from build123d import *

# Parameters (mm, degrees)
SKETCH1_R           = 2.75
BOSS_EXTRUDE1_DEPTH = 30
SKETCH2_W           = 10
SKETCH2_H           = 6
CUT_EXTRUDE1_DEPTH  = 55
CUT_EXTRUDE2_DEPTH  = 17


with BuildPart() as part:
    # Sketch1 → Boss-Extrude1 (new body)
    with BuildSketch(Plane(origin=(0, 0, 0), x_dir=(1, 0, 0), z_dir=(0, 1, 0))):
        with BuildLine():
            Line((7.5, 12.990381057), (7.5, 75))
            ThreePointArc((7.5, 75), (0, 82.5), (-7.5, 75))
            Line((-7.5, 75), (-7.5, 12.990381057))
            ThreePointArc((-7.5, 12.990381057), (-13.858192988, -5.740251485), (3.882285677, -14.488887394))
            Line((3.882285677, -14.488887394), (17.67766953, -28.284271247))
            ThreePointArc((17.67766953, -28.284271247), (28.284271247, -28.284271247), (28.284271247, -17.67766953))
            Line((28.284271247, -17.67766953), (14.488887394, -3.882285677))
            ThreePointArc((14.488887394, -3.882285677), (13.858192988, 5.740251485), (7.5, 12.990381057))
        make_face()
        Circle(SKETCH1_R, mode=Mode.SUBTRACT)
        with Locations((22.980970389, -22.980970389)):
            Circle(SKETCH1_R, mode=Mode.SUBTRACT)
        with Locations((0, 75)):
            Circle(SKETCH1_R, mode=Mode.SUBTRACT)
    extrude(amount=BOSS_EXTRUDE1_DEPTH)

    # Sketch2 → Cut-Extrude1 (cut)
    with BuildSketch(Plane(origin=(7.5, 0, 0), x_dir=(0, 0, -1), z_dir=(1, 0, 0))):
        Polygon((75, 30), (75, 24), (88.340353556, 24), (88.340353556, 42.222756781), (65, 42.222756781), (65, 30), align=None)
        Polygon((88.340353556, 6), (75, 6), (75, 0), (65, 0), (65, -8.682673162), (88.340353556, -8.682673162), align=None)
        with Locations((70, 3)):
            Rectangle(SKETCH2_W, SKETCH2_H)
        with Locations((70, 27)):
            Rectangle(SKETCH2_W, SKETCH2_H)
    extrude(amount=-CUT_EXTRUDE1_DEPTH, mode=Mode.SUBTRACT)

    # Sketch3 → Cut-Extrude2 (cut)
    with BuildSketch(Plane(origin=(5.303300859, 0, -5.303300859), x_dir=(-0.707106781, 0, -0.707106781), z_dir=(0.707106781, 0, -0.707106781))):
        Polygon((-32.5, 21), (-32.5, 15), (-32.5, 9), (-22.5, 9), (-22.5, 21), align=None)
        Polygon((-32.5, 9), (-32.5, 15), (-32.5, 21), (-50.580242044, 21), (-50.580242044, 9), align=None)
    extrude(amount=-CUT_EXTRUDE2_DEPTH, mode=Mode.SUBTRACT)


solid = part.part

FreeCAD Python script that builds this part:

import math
import FreeCAD as App
import Part
import Sketcher
Q = App.Units.Quantity

doc = App.newDocument("Part")
params = doc.addObject("Spreadsheet::Sheet", "Params")
for row, (alias, value) in enumerate([
    ("sketch1_radius", "15 mm"),
    ("sketch1_diameter", "5.5 mm"),
    ("sketch1_radius2", "7.5 mm"),
    ("pad1_length", "30 mm"),
    ("pocket1_length", "55 mm"),
    ("sketch3_height", "12 mm"),
    ("pocket2_length", "17 mm"),
], start=1):
    params.set(f"A{row}", alias)
    params.set(f"B{row}", "=" + value)
    params.setAlias(f"B{row}", alias)

body = doc.addObject("PartDesign::Body", "Body")

sketch1 = body.newObject("Sketcher::SketchObject", "Sketch")
sketch1.AttachmentSupport = (doc.getObject("XZ_Plane"), [""])
sketch1.MapMode = "FlatFace"
sketch1.addGeometry([
    Part.LineSegment(App.Vector(7.5, -13, 0), App.Vector(7.5, -75, 0)),
    Part.ArcOfCircle(Part.Circle(App.Vector(0, -75, 0), App.Vector(0, 0, 1), 7.5), math.radians(180), math.radians(360)),
    Part.LineSegment(App.Vector(-7.5, -75, 0), App.Vector(-7.5, -13, 0)),
    Part.ArcOfCircle(Part.Circle(App.Vector(0, 0, 0), App.Vector(0, 0, 1), 15), math.radians(75), math.radians(240)),
    Part.LineSegment(App.Vector(3.9, 14.5, 0), App.Vector(17.7, 28.3, 0)),
    Part.ArcOfCircle(Part.Circle(App.Vector(23, 23, 0), App.Vector(0, 0, 1), 7.5), math.radians(-45), math.radians(135)),
    Part.LineSegment(App.Vector(28.3, 17.7, 0), App.Vector(14.5, 3.9, 0)),
    Part.ArcOfCircle(Part.Circle(App.Vector(0, 0, 0), App.Vector(0, 0, 1), 15), math.radians(-60), math.radians(15)),
    Part.Circle(App.Vector(0, 0, 0), App.Vector(0, 0, 1), 2.8),
    Part.Circle(App.Vector(23, 23, 0), App.Vector(0, 0, 1), 2.8),
    Part.Circle(App.Vector(0, -75, 0), App.Vector(0, 0, 1), 2.8),
], False)
sketch1.addConstraint([
    Sketcher.Constraint("Tangent", 0, 2, 1, 2),
    Sketcher.Constraint("Tangent", 1, 1, 2, 1),
    Sketcher.Constraint("Coincident", 2, 2, 3, 2),
    Sketcher.Constraint("Coincident", 3, 1, 4, 1),
    Sketcher.Constraint("Tangent", 4, 2, 5, 2),
    Sketcher.Constraint("Tangent", 5, 1, 6, 1),
    Sketcher.Constraint("Coincident", 6, 2, 7, 2),
    Sketcher.Constraint("Coincident", 7, 1, 0, 1),
    Sketcher.Constraint("Vertical", 0),
    Sketcher.Constraint("Vertical", 2),
    Sketcher.Constraint("Coincident", 3, 3, -1, 1),
    Sketcher.Constraint("Coincident", 7, 3, -1, 1),
    Sketcher.Constraint("Coincident", 8, 3, -1, 1),
    Sketcher.Constraint("Coincident", 9, 3, 5, 3),
    Sketcher.Constraint("Coincident", 10, 3, 1, 3),
    Sketcher.Constraint("Equal", 1, 5),
    Sketcher.Constraint("Equal", 3, 7),
    Sketcher.Constraint("Equal", 8, 9),
    Sketcher.Constraint("Equal", 9, 10),
    Sketcher.Constraint("PointOnObject", 1, 3, -2),
    Sketcher.Constraint("Parallel", 4, 6),
    Sketcher.Constraint("Equal", 4, 6),
    Sketcher.Constraint("Radius", 3, Q("15 mm")),
    Sketcher.Constraint("Diameter", 8, Q("5.5 mm")),
    Sketcher.Constraint("Radius", 1, Q("7.5 mm")),
    Sketcher.Constraint("Angle", 4, Q("45 deg")),
    Sketcher.Constraint("DistanceY", 1, 3, -1, 1, Q("75 mm")),
    Sketcher.Constraint("Distance", 4, Q("19.509619 mm")),
])
sketch1.setExpression("Constraints[22]", "Params.sketch1_radius")
sketch1.setExpression("Constraints[23]", "Params.sketch1_diameter")
sketch1.setExpression("Constraints[24]", "Params.sketch1_radius2")
pad1 = body.newObject("PartDesign::Pad", "Pad")
pad1.Profile = sketch1
pad1.setExpression("Length", "Params.pad1_length")
pad1.Reversed = True

sketch2 = body.newObject("Sketcher::SketchObject", "Sketch001")
sketch2.AttachmentSupport = (doc.getObject("YZ_Plane"), [""])
sketch2.MapMode = "FlatFace"
sketch2.AttachmentOffset = App.Placement(App.Vector(0, 0, 7.5), App.Rotation())
sketch2.addGeometry([
    Part.LineSegment(App.Vector(24, -88, 0), App.Vector(42, -88, 0)),
    Part.LineSegment(App.Vector(42, -88, 0), App.Vector(42, -65, 0)),
    Part.LineSegment(App.Vector(42, -65, 0), App.Vector(24, -65, 0)),
    Part.LineSegment(App.Vector(24, -65, 0), App.Vector(24, -88, 0)),
    Part.LineSegment(App.Vector(6, -88, 0), App.Vector(6, -65, 0)),
    Part.LineSegment(App.Vector(6, -65, 0), App.Vector(-9, -65, 0)),
    Part.LineSegment(App.Vector(-9, -65, 0), App.Vector(-9, -88, 0)),
    Part.LineSegment(App.Vector(-9, -88, 0), App.Vector(6, -88, 0)),
], False)
sketch2.addConstraint([
    Sketcher.Constraint("Coincident", 0, 2, 1, 1),
    Sketcher.Constraint("Coincident", 1, 2, 2, 1),
    Sketcher.Constraint("Coincident", 2, 2, 3, 1),
    Sketcher.Constraint("Coincident", 3, 2, 0, 1),
    Sketcher.Constraint("Coincident", 4, 2, 5, 1),
    Sketcher.Constraint("Coincident", 5, 2, 6, 1),
    Sketcher.Constraint("Coincident", 6, 2, 7, 1),
    Sketcher.Constraint("Coincident", 7, 2, 4, 1),
    Sketcher.Constraint("Horizontal", 0),
    Sketcher.Constraint("Vertical", 1),
    Sketcher.Constraint("Horizontal", 2),
    Sketcher.Constraint("Vertical", 3),
    Sketcher.Constraint("Vertical", 4),
    Sketcher.Constraint("Horizontal", 5),
    Sketcher.Constraint("Vertical", 6),
    Sketcher.Constraint("Horizontal", 7),
    Sketcher.Constraint("Horizontal", 2, 2, 4, 2),
    Sketcher.Constraint("Horizontal", 3, 2, 6, 2),
    Sketcher.Constraint("DistanceY", 1, 2, -1, 1, Q("65 mm")),
    Sketcher.Constraint("DistanceX", -1, 1, 2, 2, Q("24 mm")),
    Sketcher.Constraint("DistanceX", -1, 1, 4, 2, Q("6 mm")),
    Sketcher.Constraint("DistanceX", 0, 1, 0, 2, Q("18.222757 mm")),
    Sketcher.Constraint("DistanceX", 5, 2, 5, 1, Q("14.682673 mm")),
    Sketcher.Constraint("DistanceY", 1, 1, 1, 2, Q("23.340354 mm")),
])
pocket1 = body.newObject("PartDesign::Pocket", "Pocket")
pocket1.Profile = sketch2
pocket1.setExpression("Length", "Params.pocket1_length")

sketch3 = body.newObject("Sketcher::SketchObject", "Sketch002")
sketch3.Placement = App.Placement(App.Vector(5.303301, 0, -5.303301), App.Rotation(App.Vector(-0.707106781, 0, -0.707106781), App.Vector(0, 0.999999999, 0), App.Vector(0.707106781, 0, -0.707106781), "ZXY"))
sketch3.addGeometry([
    Part.LineSegment(App.Vector(-22, 9, 0), App.Vector(-22, 21, 0)),
    Part.LineSegment(App.Vector(-22, 21, 0), App.Vector(-51, 21, 0)),
    Part.LineSegment(App.Vector(-51, 21, 0), App.Vector(-51, 9, 0)),
    Part.LineSegment(App.Vector(-51, 9, 0), App.Vector(-22, 9, 0)),
], False)
sketch3.addConstraint([
    Sketcher.Constraint("Coincident", 0, 2, 1, 1),
    Sketcher.Constraint("Coincident", 1, 2, 2, 1),
    Sketcher.Constraint("Coincident", 2, 2, 3, 1),
    Sketcher.Constraint("Coincident", 3, 2, 0, 1),
    Sketcher.Constraint("Vertical", 0),
    Sketcher.Constraint("Horizontal", 1),
    Sketcher.Constraint("Vertical", 2),
    Sketcher.Constraint("Horizontal", 3),
    Sketcher.Constraint("DistanceY", 0, 1, 0, 2, Q("12 mm")),
    Sketcher.Constraint("DistanceY", -1, 1, 0, 2, Q("21 mm")),
    Sketcher.Constraint("DistanceX", 0, 2, -1, 1, Q("22.5 mm")),
    Sketcher.Constraint("DistanceX", 1, 2, 1, 1, Q("28.080242 mm")),
])
sketch3.setExpression("Constraints[8]", "Params.sketch3_height")
pocket2 = body.newObject("PartDesign::Pocket", "Pocket001")
pocket2.Profile = sketch3
pocket2.setExpression("Length", "Params.pocket2_length")

doc.recompute()
